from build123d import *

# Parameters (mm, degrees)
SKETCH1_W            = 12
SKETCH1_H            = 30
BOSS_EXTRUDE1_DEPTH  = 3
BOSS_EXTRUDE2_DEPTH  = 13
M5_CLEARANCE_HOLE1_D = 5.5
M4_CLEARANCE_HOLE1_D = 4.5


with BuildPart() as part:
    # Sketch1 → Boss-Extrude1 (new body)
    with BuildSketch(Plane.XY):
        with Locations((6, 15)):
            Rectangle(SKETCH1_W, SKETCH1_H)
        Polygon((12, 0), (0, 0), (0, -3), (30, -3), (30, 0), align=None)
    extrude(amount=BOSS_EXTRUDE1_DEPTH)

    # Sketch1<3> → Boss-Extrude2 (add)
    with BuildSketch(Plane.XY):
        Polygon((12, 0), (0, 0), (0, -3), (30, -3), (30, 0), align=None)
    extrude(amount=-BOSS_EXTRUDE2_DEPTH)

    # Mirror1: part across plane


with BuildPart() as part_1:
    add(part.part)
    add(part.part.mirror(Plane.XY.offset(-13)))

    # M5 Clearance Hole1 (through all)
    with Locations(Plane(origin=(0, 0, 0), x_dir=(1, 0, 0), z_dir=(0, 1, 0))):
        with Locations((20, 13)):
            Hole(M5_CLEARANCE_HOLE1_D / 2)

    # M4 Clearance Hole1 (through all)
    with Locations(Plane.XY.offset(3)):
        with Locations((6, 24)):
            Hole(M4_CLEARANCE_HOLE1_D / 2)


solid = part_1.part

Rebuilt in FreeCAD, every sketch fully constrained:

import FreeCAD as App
import Part
import Sketcher
from FreeCAD import Vector


def add_polygon(sketch, points):
    """Adds a closed chain of lines whose ends are joined by coincident constraints."""
    first, n = sketch.GeometryCount, len(points)
    for a, b in zip(points, points[1:] + points[:1]):
        sketch.addGeometry(Part.LineSegment(App.Vector(*a, 0), App.Vector(*b, 0)), False)
    for i in range(n):
        sketch.addConstraint(Sketcher.Constraint("Coincident", first + i, 2, first + (i + 1) % n, 1))

doc = App.newDocument("Part")
body = doc.addObject("PartDesign::Body", "Body")

sketch1 = doc.addObject("Sketcher::SketchObject", "Sketch")
body.addObject(sketch1)
sketch1.AttachmentSupport = (doc.XY_Plane, [""])
sketch1.MapMode = "FlatFace"
add_polygon(sketch1, [(0, 30), (0, -3), (30, -3), (30, 0), (12, 0), (12, 30)])
sketch1.addConstraint([
    Sketcher.Constraint("Vertical", 0),
    Sketcher.Constraint("Horizontal", 1),
    Sketcher.Constraint("Vertical", 2),
    Sketcher.Constraint("Horizontal", 3),
    Sketcher.Constraint("Vertical", 4),
    Sketcher.Constraint("Horizontal", 5),
    Sketcher.Constraint("PointOnObject", 0, 2, -2),
    Sketcher.Constraint("PointOnObject", 2, 2, -1),
    Sketcher.Constraint("Equal", 1, 4),
    Sketcher.Constraint("DistanceX", 1, 1, 1, 2, 30.0),
    Sketcher.Constraint("DistanceX", 3, 2, 3, 1, 18.0),
    Sketcher.Constraint("DistanceY", 0, 2, 0, 1, 33.0),
])
pad1 = doc.addObject("PartDesign::Pad", "Pad")
body.addObject(pad1)
pad1.Profile = sketch1
pad1.Length = 3

sketch2 = doc.addObject("Sketcher::SketchObject", "Sketch001")
body.addObject(sketch2)
sketch2.AttachmentSupport = (doc.XY_Plane, [""])
sketch2.MapMode = "FlatFace"
add_polygon(sketch2, [(0, 0), (0, -3), (30, -3), (30, 0)])
sketch2.addConstraint([
    Sketcher.Constraint("Vertical", 0),
    Sketcher.Constraint("Horizontal", 1),
    Sketcher.Constraint("Vertical", 2),
    Sketcher.Constraint("Horizontal", 3),
    Sketcher.Constraint("Coincident", 3, 2, -1, 1),
    Sketcher.Constraint("DistanceX", 1, 1, 1, 2, 30.0),
    Sketcher.Constraint("DistanceY", 0, 2, 0, 1, 3.0),
])
pad2 = doc.addObject("PartDesign::Pad", "Pad001")
body.addObject(pad2)
pad2.Profile = sketch2
pad2.Length = 13
pad2.Reversed = True
body2 = doc.addObject("PartDesign::Body", "Body001")
doc.recompute()

body2.BaseFeature = body
doc.recompute()

mirroring = doc.addObject("Part::Mirroring", "Mirroring")
mirroring.Source = body
mirroring.Base = Vector(0, 0, -13)
mirroring.Normal = Vector(0, 0, 1)
body3 = doc.addObject("PartDesign::Body", "Body002")
body3.BaseFeature = mirroring
boolean = doc.addObject("PartDesign::Boolean", "Boolean")
body2.addObject(boolean)
boolean.Type = "Fuse"
boolean.addObjects([body3])
doc.recompute()

sketch3 = doc.addObject("Sketcher::SketchObject", "Sketch002")
body2.addObject(sketch3)
sketch3.AttachmentSupport = (doc.getObject("XZ_Plane001"), [""])
sketch3.MapMode = "FlatFace"
sketch3.addGeometry(Part.Circle(Vector(20, -13, 0), Vector(0, 0, 1), 2.8), False)
sketch3.addConstraint([
    Sketcher.Constraint("Diameter", 0, 5.5),
    Sketcher.Constraint("DistanceX", -1, 1, 0, 3, 20.0),
    Sketcher.Constraint("DistanceY", 0, 3, -1, 1, 13.0),
])
doc.recompute()
hole = doc.addObject("PartDesign::Hole", "Hole")
body2.addObject(hole)
hole.Profile = sketch3
hole.ThreadType = "None"
hole.Diameter = 5.5
hole.DepthType = "ThroughAll"
hole.Reversed = True

sketch4 = doc.addObject("Sketcher::SketchObject", "Sketch003")
body2.addObject(sketch4)
sketch4.AttachmentSupport = (doc.getObject("XY_Plane001"), [""])
sketch4.MapMode = "FlatFace"
sketch4.AttachmentOffset = App.Placement(Vector(0, 0, 3), App.Rotation())
sketch4.addGeometry(Part.Circle(Vector(6, 24, 0), Vector(0, 0, 1), 2.2), False)
sketch4.addConstraint([
    Sketcher.Constraint("Diameter", 0, 4.5),
    Sketcher.Constraint("DistanceX", -1, 1, 0, 3, 6.0),
    Sketcher.Constraint("DistanceY", -1, 1, 0, 3, 24.0),
])
doc.recompute()
hole2 = doc.addObject("PartDesign::Hole", "Hole001")
body2.addObject(hole2)
hole2.Profile = sketch4
hole2.ThreadType = "None"
hole2.Diameter = 4.5
hole2.DepthType = "ThroughAll"
mirroring.Visibility = False

doc.recompute()
